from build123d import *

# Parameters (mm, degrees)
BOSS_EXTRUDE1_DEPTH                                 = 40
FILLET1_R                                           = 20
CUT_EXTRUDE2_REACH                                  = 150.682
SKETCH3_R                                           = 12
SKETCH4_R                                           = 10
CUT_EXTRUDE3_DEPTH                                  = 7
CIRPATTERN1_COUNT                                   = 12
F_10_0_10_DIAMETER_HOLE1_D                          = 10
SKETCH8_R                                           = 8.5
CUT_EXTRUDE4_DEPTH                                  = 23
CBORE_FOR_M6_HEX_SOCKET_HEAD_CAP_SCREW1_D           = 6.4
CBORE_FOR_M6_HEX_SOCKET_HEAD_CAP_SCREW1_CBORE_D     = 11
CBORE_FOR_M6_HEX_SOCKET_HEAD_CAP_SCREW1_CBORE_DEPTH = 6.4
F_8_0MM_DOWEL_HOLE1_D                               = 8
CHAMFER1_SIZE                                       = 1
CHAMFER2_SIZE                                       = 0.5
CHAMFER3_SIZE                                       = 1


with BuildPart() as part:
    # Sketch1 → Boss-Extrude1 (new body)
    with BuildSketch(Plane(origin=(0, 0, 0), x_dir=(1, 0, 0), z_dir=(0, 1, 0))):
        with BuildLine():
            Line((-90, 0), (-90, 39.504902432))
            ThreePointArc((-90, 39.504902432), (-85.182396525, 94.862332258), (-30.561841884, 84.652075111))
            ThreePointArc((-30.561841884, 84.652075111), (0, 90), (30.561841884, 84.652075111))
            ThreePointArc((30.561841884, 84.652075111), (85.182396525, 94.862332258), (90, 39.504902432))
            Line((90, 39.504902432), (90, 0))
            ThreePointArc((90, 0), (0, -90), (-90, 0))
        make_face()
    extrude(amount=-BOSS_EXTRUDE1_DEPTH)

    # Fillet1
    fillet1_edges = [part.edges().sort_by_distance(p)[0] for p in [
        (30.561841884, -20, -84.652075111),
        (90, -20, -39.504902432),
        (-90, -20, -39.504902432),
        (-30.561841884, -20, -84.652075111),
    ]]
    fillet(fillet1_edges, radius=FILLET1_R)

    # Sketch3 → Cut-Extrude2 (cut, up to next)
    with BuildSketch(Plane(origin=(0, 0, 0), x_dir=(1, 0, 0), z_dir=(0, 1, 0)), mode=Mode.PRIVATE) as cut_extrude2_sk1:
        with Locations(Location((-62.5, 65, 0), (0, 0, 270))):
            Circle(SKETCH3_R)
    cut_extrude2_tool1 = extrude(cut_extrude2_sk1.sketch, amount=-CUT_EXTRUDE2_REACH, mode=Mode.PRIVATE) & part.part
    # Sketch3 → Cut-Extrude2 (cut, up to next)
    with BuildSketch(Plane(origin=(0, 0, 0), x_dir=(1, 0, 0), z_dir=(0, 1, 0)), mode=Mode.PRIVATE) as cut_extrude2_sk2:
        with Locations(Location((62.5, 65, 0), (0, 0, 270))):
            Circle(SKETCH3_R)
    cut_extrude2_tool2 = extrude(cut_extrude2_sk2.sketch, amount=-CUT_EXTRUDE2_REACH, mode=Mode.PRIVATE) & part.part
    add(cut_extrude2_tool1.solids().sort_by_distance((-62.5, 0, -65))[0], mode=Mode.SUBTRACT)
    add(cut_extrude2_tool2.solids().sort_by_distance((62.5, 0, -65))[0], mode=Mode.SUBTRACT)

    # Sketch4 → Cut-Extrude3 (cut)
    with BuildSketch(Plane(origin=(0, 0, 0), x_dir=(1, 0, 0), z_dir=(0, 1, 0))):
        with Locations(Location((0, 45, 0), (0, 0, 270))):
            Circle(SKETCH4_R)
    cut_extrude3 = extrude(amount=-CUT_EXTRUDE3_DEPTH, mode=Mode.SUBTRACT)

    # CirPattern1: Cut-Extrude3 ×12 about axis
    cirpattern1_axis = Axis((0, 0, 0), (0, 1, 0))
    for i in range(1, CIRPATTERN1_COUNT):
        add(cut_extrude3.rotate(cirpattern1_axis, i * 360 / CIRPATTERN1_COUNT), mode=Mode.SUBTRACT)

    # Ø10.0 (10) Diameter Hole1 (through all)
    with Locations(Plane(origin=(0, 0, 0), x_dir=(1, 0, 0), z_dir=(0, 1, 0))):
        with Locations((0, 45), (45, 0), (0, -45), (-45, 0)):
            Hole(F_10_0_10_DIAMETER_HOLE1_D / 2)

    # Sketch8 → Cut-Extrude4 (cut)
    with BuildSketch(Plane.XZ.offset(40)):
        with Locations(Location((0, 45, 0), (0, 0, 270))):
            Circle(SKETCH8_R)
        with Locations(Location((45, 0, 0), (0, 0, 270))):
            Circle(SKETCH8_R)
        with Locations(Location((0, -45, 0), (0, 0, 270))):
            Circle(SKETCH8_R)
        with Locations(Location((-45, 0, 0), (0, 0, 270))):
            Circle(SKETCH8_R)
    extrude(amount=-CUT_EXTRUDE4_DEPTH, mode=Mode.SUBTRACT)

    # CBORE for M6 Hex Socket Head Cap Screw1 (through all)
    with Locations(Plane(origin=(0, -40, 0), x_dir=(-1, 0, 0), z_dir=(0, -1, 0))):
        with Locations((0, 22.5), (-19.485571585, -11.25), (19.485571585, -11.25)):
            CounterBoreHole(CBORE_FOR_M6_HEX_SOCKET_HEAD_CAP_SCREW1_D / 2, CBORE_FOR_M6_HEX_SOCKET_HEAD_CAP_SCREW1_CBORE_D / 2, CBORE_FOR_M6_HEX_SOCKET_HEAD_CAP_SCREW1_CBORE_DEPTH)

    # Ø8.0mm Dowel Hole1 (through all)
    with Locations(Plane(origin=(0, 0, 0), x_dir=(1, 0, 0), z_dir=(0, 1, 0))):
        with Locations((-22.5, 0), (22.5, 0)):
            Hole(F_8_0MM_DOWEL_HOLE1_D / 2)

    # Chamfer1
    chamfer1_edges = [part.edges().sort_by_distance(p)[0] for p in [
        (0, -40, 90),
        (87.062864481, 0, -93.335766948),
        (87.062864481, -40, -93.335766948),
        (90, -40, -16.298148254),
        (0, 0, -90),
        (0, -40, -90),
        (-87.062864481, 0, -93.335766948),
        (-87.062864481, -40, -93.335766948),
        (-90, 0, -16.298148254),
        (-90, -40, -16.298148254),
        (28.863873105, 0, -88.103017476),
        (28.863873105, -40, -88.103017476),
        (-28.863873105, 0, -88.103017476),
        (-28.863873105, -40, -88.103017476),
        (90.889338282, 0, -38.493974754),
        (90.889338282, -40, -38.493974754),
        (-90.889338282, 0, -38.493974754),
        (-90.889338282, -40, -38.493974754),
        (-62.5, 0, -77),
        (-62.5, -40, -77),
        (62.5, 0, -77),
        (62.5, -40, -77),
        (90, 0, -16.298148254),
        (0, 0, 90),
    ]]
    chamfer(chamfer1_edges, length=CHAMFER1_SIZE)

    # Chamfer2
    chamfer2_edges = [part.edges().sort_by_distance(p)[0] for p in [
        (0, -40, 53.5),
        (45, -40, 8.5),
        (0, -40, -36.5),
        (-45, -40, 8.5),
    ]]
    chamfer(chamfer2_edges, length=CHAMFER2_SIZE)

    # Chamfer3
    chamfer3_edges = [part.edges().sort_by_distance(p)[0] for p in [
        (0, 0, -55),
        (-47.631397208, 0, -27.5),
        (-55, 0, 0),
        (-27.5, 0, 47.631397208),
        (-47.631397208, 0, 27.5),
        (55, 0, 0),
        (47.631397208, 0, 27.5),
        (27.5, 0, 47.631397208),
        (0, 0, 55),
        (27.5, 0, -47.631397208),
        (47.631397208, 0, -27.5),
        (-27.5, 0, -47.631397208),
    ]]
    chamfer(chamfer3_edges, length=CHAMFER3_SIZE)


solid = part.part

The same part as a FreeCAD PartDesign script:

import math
import FreeCAD as App
import Part
import Sketcher

V = App.Vector
Q = App.Units.Quantity


def edges_at(feature, points):
    """Names of the edges that pass closest to the given points."""
    edges = feature.Shape.Edges
    near = lambda p: min(range(len(edges)), key=lambda i: edges[i].distToShape(Part.Vertex(*p))[0])
    return sorted({f"Edge{near(p) + 1}" for p in points})

doc = App.newDocument("Part")
body = doc.addObject("PartDesign::Body", "Body")

# Sketch on XZ plane
sketch1 = body.newObject("Sketcher::SketchObject", "Sketch")
sketch1.AttachmentSupport = (doc.getObject("XZ_Plane"), [""])
sketch1.MapMode = "FlatFace"
sketch1.addGeometry(Part.LineSegment(V(-90, -40, 0), V(-90, 0, 0)), False)
sketch1.addGeometry(Part.ArcOfCircle(Part.Circle(V(0, 0, 0), V(0, 0, 1), 90), math.radians(0), math.radians(180)), False)
sketch1.addGeometry(Part.LineSegment(V(90, 0, 0), V(90, -40, 0)), False)
sketch1.addGeometry(Part.ArcOfCircle(Part.Circle(V(62, -65, 0), V(0, 0, 1), 38), math.radians(-148), math.radians(43)), False)
sketch1.addGeometry(Part.ArcOfCircle(Part.Circle(V(0, 0, 0), V(0, 0, 1), 90), math.radians(-110), math.radians(-70)), False)
sketch1.addGeometry(Part.ArcOfCircle(Part.Circle(V(-62, -65, 0), V(0, 0, 1), 38), math.radians(137), math.radians(328)), False)
sketch1.addConstraint(Sketcher.Constraint("Tangent", 0, 2, 1, 2))
sketch1.addConstraint(Sketcher.Constraint("Tangent", 1, 1, 2, 1))
sketch1.addConstraint(Sketcher.Constraint("Coincident", 2, 2, 3, 2))
sketch1.addConstraint(Sketcher.Constraint("Coincident", 3, 1, 4, 2))
sketch1.addConstraint(Sketcher.Constraint("Coincident", 4, 1, 5, 2))
sketch1.addConstraint(Sketcher.Constraint("Coincident", 5, 1, 0, 1))
sketch1.addConstraint(Sketcher.Constraint("Vertical", 0))
sketch1.addConstraint(Sketcher.Constraint("Vertical", 2))
sketch1.addConstraint(Sketcher.Constraint("Coincident", 1, 3, -1, 1))
sketch1.addConstraint(Sketcher.Constraint("Coincident", 4, 3, -1, 1))
sketch1.addConstraint(Sketcher.Constraint("Equal", 1, 4))
sketch1.addConstraint(Sketcher.Constraint("Equal", 3, 5))
sketch1.addConstraint(Sketcher.Constraint("Symmetric", 3, 3, 5, 3, -2))
sketch1.addConstraint(Sketcher.Constraint("Radius", 1, Q("90 mm")))
sketch1.addConstraint(Sketcher.Constraint("Radius", 3, Q("37.5 mm")))
sketch1.addConstraint(Sketcher.Constraint("DistanceY", 3, 3, -1, 1, Q("65 mm")))
sketch1.addConstraint(Sketcher.Constraint("DistanceX", 5, 3, 3, 3, Q("125 mm")))
pad1 = body.newObject("PartDesign::Pad", "Pad")
pad1.Profile = sketch1
pad1.Length = 40
doc.recompute()

fillet = body.newObject("PartDesign::Fillet", "Fillet")
fillet.Base = (pad1, edges_at(pad1, [
    (30.562, -20, -84.652),
    (90, -20, -39.505),
    (-90, -20, -39.505),
    (-30.562, -20, -84.652),
]))
fillet.Radius = 20

# Sketch on XZ plane
sketch2 = body.newObject("Sketcher::SketchObject", "Sketch001")
sketch2.AttachmentSupport = (doc.getObject("XZ_Plane"), [""])
sketch2.MapMode = "FlatFace"
sketch2.addGeometry(Part.Circle(V(-62, -65, 0), V(0, 0, 1), 12), False)
sketch2.addConstraint(Sketcher.Constraint("Diameter", 0, Q("24 mm")))
sketch2.addConstraint(Sketcher.Constraint("DistanceY", 0, 3, -1, 1, Q("65 mm")))
sketch2.addConstraint(Sketcher.Constraint("DistanceX", 0, 3, -1, 1, Q("62.5 mm")))
pocket1 = body.newObject("PartDesign::Pocket", "Pocket")
pocket1.Profile = sketch2
pocket1.Type = "UpToFirst"
pocket1.Reversed = True

# Sketch on XZ plane
sketch3 = body.newObject("Sketcher::SketchObject", "Sketch002")
sketch3.AttachmentSupport = (doc.getObject("XZ_Plane"), [""])
sketch3.MapMode = "FlatFace"
sketch3.addGeometry(Part.Circle(V(62, -65, 0), V(0, 0, 1), 12), False)
sketch3.addConstraint(Sketcher.Constraint("Diameter", 0, Q("24 mm")))
sketch3.addConstraint(Sketcher.Constraint("DistanceY", 0, 3, -1, 1, Q("65 mm")))
sketch3.addConstraint(Sketcher.Constraint("DistanceX", -1, 1, 0, 3, Q("62.5 mm")))
pocket2 = body.newObject("PartDesign::Pocket", "Pocket001")
pocket2.Profile = sketch3
pocket2.Type = "UpToFirst"
pocket2.Reversed = True

# Sketch on XZ plane
sketch4 = body.newObject("Sketcher::SketchObject", "Sketch003")
sketch4.AttachmentSupport = (doc.getObject("XZ_Plane"), [""])
sketch4.MapMode = "FlatFace"
sketch4.addGeometry(Part.Circle(V(0, -45, 0), V(0, 0, 1), 10), False)
sketch4.addConstraint(Sketcher.Constraint("PointOnObject", 0, 3, -2))
sketch4.addConstraint(Sketcher.Constraint("Diameter", 0, Q("20 mm")))
sketch4.addConstraint(Sketcher.Constraint("DistanceY", 0, 3, -1, 1, Q("45 mm")))
pocket3 = body.newObject("PartDesign::Pocket", "Pocket002")
pocket3.Profile = sketch4
pocket3.Length = 7
pocket3.Reversed = True
doc.recompute()

polarpattern = body.newObject("PartDesign::PolarPattern", "PolarPattern")
polarpattern.Originals = [pocket3]
polarpattern.Axis = (doc.getObject("Y_Axis"), [""])
polarpattern.Angle = 360
polarpattern.Occurrences = 12
body.Tip = polarpattern

# Sketch on XZ plane
sketch5 = body.newObject("Sketcher::SketchObject", "Sketch004")
sketch5.AttachmentSupport = (doc.getObject("XZ_Plane"), [""])
sketch5.MapMode = "FlatFace"
sketch5.addGeometry(Part.Circle(V(0, -45, 0), V(0, 0, 1), 5), False)
sketch5.addGeometry(Part.Circle(V(45, 0, 0), V(0, 0, 1), 5), False)
sketch5.addGeometry(Part.Circle(V(0, 45, 0), V(0, 0, 1), 5), False)
sketch5.addGeometry(Part.Circle(V(-45, 0, 0), V(0, 0, 1), 5), False)
sketch5.addConstraint(Sketcher.Constraint("Equal", 0, 1))
sketch5.addConstraint(Sketcher.Constraint("Equal", 1, 2))
sketch5.addConstraint(Sketcher.Constraint("Equal", 2, 3))
sketch5.addConstraint(Sketcher.Constraint("Symmetric", 0, 3, 2, 3, -1, 1))
sketch5.addConstraint(Sketcher.Constraint("Symmetric", 1, 3, 3, 3, -1, 1))
sketch5.addConstraint(Sketcher.Constraint("PointOnObject", 0, 3, -2))
sketch5.addConstraint(Sketcher.Constraint("PointOnObject", 1, 3, -1))
sketch5.addConstraint(Sketcher.Constraint("Diameter", 0, Q("10 mm")))
sketch5.addConstraint(Sketcher.Constraint("DistanceY", 0, 3, -1, 1, Q("45 mm")))
sketch5.addConstraint(Sketcher.Constraint("DistanceX", -1, 1, 1, 3, Q("45 mm")))
doc.recompute()
hole = body.newObject("PartDesign::Hole", "Hole")
hole.Profile = sketch5
hole.ThreadType = "None"
hole.Diameter = 10
hole.DepthType = "ThroughAll"
hole.Reversed = True

# Sketch on XZ plane
sketch6 = body.newObject("Sketcher::SketchObject", "Sketch005")
sketch6.AttachmentSupport = (doc.getObject("XZ_Plane"), [""])
sketch6.MapMode = "FlatFace"
sketch6.AttachmentOffset = App.Placement(V(0, 0, 40), App.Rotation())
sketch6.addGeometry(Part.Circle(V(0, 45, 0), V(0, 0, 1), 8), False)
sketch6.addGeometry(Part.Circle(V(45, 0, 0), V(0, 0, 1), 8), False)
sketch6.addGeometry(Part.Circle(V(0, -45, 0), V(0, 0, 1), 8), False)
sketch6.addGeometry(Part.Circle(V(-45, 0, 0), V(0, 0, 1), 8), False)
sketch6.addConstraint(Sketcher.Constraint("Equal", 0, 1))
sketch6.addConstraint(Sketcher.Constraint("Equal", 1, 2))
sketch6.addConstraint(Sketcher.Constraint("Equal", 2, 3))
sketch6.addConstraint(Sketcher.Constraint("Symmetric", 0, 3, 2, 3, -1, 1))
sketch6.addConstraint(Sketcher.Constraint("Symmetric", 1, 3, 3, 3, -1, 1))
sketch6.addConstraint(Sketcher.Constraint("PointOnObject", 0, 3, -2))
sketch6.addConstraint(Sketcher.Constraint("PointOnObject", 1, 3, -1))
sketch6.addConstraint(Sketcher.Constraint("Diameter", 0, Q("17 mm")))
sketch6.addConstraint(Sketcher.Constraint("DistanceY", -1, 1, 0, 3, Q("45 mm")))
sketch6.addConstraint(Sketcher.Constraint("DistanceX", -1, 1, 1, 3, Q("45 mm")))
pocket4 = body.newObject("PartDesign::Pocket", "Pocket003")
pocket4.Profile = sketch6
pocket4.Length = 23

# Sketch on XZ plane
sketch7 = body.newObject("Sketcher::SketchObject", "Sketch006")
sketch7.AttachmentSupport = (doc.getObject("XZ_Plane"), [""])
sketch7.MapMode = "FlatFace"
sketch7.AttachmentOffset = App.Placement(V(0, 0, 40), App.Rotation())
sketch7.addGeometry(Part.Circle(V(0, -22.5, 0), V(0, 0, 1), 3.2), False)
sketch7.addGeometry(Part.Circle(V(19.5, 11.2, 0), V(0, 0, 1), 3.2), False)
sketch7.addGeometry(Part.Circle(V(-19.5, 11.2, 0), V(0, 0, 1), 3.2), False)
sketch7.addConstraint(Sketcher.Constraint("Equal", 0, 1))
sketch7.addConstraint(Sketcher.Constraint("Equal", 1, 2))
sketch7.addConstraint(Sketcher.Constraint("Symmetric", 1, 3, 2, 3, -2))
sketch7.addConstraint(Sketcher.Constraint("PointOnObject", 0, 3, -2))
sketch7.addConstraint(Sketcher.Constraint("Diameter", 0, Q("6.4 mm")))
sketch7.addConstraint(Sketcher.Constraint("DistanceY", 0, 3, -1, 1, Q("22.5 mm")))
sketch7.addConstraint(Sketcher.Constraint("DistanceY", -1, 1, 1, 3, Q("11.25 mm")))
sketch7.addConstraint(Sketcher.Constraint("DistanceX", -1, 1, 1, 3, Q("19.485572 mm")))
doc.recompute()
hole2 = body.newObject("PartDesign::Hole", "Hole001")
hole2.Profile = sketch7
hole2.ThreadType = "None"
hole2.Diameter = 6.4
hole2.DepthType = "ThroughAll"
hole2.HoleCutType = "Counterbore"
hole2.HoleCutDiameter = 11
hole2.HoleCutDepth = 6.4

# Sketch on XZ plane
sketch8 = body.newObject("Sketcher::SketchObject", "Sketch007")
sketch8.AttachmentSupport = (doc.getObject("XZ_Plane"), [""])
sketch8.MapMode = "FlatFace"
sketch8.addGeometry(Part.Circle(V(-22.5, 0, 0), V(0, 0, 1), 4), False)
sketch8.addGeometry(Part.Circle(V(22.5, 0, 0), V(0, 0, 1), 4), False)
sketch8.addConstraint(Sketcher.Constraint("Equal", 0, 1))
sketch8.addConstraint(Sketcher.Constraint("Symmetric", 0, 3, 1, 3, -1, 1))
sketch8.addConstraint(Sketcher.Constraint("PointOnObject", 0, 3, -1))
sketch8.addConstraint(Sketcher.Constraint("Diameter", 0, Q("8 mm")))
sketch8.addConstraint(Sketcher.Constraint("DistanceX", 0, 3, 1, 3, Q("45 mm")))
doc.recompute()
hole3 = body.newObject("PartDesign::Hole", "Hole002")
hole3.Profile = sketch8
hole3.ThreadType = "None"
hole3.Diameter = 8
hole3.DepthType = "ThroughAll"
hole3.Reversed = True
doc.recompute()

chamfer = body.newObject("PartDesign::Chamfer", "Chamfer")
chamfer.Base = (hole3, edges_at(hole3, [
    (0, -40, 90),
    (87.063, 0, -93.336),
    (87.063, -40, -93.336),
    (90, -40, -16.298),
    (0, 0, -90),
    (0, -40, -90),
    (-87.063, 0, -93.336),
    (-87.063, -40, -93.336),
    (-90, 0, -16.298),
    (-90, -40, -16.298),
    (28.864, 0, -88.103),
    (28.864, -40, -88.103),
    (-28.864, 0, -88.103),
    (-28.864, -40, -88.103),
    (90.889, 0, -38.494),
    (90.889, -40, -38.494),
    (-90.889, 0, -38.494),
    (-90.889, -40, -38.494),
    (-62.5, 0, -77),
    (-62.5, -40, -77),
    (62.5, 0, -77),
    (62.5, -40, -77),
    (90, 0, -16.298),
    (0, 0, 90),
]))
chamfer.Size = 1
doc.recompute()

chamfer2 = body.newObject("PartDesign::Chamfer", "Chamfer001")
chamfer2.Base = (chamfer, edges_at(chamfer, [
    (0, -40, 53.5),
    (45, -40, 8.5),
    (0, -40, -36.5),
    (-45, -40, 8.5),
]))
chamfer2.Size = 0.5
doc.recompute()

chamfer3 = body.newObject("PartDesign::Chamfer", "Chamfer002")
chamfer3.Base = (chamfer2, edges_at(chamfer2, [
    (0, 0, -55),
    (-47.631, 0, -27.5),
    (-55, 0, 0),
    (-27.5, 0, 47.631),
    (-47.631, 0, 27.5),
    (55, 0, 0),
    (47.631, 0, 27.5),
    (27.5, 0, 47.631),
    (0, 0, 55),
    (27.5, 0, -47.631),
    (47.631, 0, -27.5),
    (-27.5, 0, -47.631),
]))
chamfer3.Size = 1

doc.recompute()
